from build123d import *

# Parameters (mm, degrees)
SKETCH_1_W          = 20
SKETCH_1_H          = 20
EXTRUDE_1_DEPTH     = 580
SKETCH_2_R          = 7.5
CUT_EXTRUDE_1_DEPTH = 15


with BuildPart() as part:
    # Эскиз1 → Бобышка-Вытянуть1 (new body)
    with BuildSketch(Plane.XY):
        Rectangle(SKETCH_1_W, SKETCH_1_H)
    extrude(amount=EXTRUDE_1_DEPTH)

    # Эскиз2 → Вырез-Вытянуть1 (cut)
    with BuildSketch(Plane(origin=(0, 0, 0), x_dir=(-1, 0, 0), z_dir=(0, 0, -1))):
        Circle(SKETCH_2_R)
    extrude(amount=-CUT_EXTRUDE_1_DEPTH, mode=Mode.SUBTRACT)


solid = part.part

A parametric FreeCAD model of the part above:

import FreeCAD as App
import Part
import Sketcher

doc = App.newDocument("Part")
params = doc.addObject("Spreadsheet::Sheet", "Params")
for row, (alias, value) in enumerate([
    ("sketch1_width", "20 mm"),
    ("pad1_length", "580 mm"),
    ("sketch2_diameter", "15 mm"),
    ("pocket1_length", "15 mm"),
], start=1):
    params.set(f"A{row}", alias)
    params.set(f"B{row}", "=" + value)
    params.setAlias(f"B{row}", alias)

body = doc.addObject("PartDesign::Body", "Body")

# Sketch on XY plane
sketch1 = body.newObject("Sketcher::SketchObject", "Sketch")
sketch1.AttachmentSupport = (doc.getObject("XY_Plane"), [""])
sketch1.MapMode = "FlatFace"
sketch1.addGeometry(Part.LineSegment(App.Vector(-10, 10, 0), App.Vector(-10, -10, 0)), False)
sketch1.addGeometry(Part.LineSegment(App.Vector(-10, -10, 0), App.Vector(10, -10, 0)), False)
sketch1.addGeometry(Part.LineSegment(App.Vector(10, -10, 0), App.Vector(10, 10, 0)), False)
sketch1.addGeometry(Part.LineSegment(App.Vector(10, 10, 0), App.Vector(-10, 10, 0)), False)
sketch1.addConstraint(Sketcher.Constraint("Coincident", 0, 2, 1, 1))
sketch1.addConstraint(Sketcher.Constraint("Coincident", 1, 2, 2, 1))
sketch1.addConstraint(Sketcher.Constraint("Coincident", 2, 2, 3, 1))
sketch1.addConstraint(Sketcher.Constraint("Coincident", 3, 2, 0, 1))
sketch1.addConstraint(Sketcher.Constraint("Vertical", 0))
sketch1.addConstraint(Sketcher.Constraint("Horizontal", 1))
sketch1.addConstraint(Sketcher.Constraint("Vertical", 2))
sketch1.addConstraint(Sketcher.Constraint("Horizontal", 3))
sketch1.addConstraint(Sketcher.Constraint("Symmetric", 0, 2, 2, 2, -1, 1))
sketch1.addConstraint(Sketcher.Constraint("Equal", 3, 0))
sketch1.addConstraint(Sketcher.Constraint("DistanceX", 1, 1, 1, 2, 20.0))
sketch1.setExpression("Constraints[10]", "Params.sketch1_width")
pad1 = body.newObject("PartDesign::Pad", "Pad")
pad1.Profile = sketch1
pad1.setExpression("Length", "Params.pad1_length")

# Sketch on XY plane
sketch2 = body.newObject("Sketcher::SketchObject", "Sketch001")
sketch2.AttachmentSupport = (doc.getObject("XY_Plane"), [""])
sketch2.MapMode = "FlatFace"
sketch2.addGeometry(Part.Circle(App.Vector(0, 0, 0), App.Vector(0, 0, 1), 8), False)
sketch2.addConstraint(Sketcher.Constraint("Coincident", 0, 3, -1, 1))
sketch2.addConstraint(Sketcher.Constraint("Diameter", 0, 15.0))
sketch2.setExpression("Constraints[1]", "Params.sketch2_diameter")
pocket1 = body.newObject("PartDesign::Pocket", "Pocket")
pocket1.Profile = sketch2
pocket1.setExpression("Length", "Params.pocket1_length")
pocket1.Reversed = True

doc.recompute()
